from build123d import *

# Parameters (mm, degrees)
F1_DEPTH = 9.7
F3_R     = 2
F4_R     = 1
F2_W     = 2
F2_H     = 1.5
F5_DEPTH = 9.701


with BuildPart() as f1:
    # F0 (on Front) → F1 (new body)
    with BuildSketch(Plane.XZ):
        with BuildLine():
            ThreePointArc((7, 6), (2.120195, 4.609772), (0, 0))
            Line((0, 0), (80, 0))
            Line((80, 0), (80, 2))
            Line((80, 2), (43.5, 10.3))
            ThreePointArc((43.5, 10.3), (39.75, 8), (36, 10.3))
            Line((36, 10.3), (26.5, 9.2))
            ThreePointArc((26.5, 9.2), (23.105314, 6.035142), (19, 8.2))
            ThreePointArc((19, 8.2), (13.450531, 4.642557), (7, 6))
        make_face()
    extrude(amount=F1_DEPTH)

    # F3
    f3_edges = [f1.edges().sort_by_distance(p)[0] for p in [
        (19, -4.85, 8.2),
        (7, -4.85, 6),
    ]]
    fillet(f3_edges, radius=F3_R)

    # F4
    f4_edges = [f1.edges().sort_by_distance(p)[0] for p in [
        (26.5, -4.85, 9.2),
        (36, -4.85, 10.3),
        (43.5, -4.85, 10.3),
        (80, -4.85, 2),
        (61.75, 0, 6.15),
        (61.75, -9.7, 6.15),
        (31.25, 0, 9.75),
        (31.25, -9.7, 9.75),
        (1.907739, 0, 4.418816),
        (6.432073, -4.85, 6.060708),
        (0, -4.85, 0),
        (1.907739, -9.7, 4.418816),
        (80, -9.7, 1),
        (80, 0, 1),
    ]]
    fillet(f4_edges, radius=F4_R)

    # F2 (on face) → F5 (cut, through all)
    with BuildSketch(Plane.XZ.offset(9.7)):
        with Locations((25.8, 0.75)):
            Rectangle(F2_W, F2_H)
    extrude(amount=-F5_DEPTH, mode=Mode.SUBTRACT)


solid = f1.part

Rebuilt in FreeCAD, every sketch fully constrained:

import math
import FreeCAD as App
import Part
import Sketcher
from FreeCAD import Vector


def edges_at(feature, points):
    """Names of the edges that pass closest to the given points."""
    edges = feature.Shape.Edges
    near = lambda p: min(range(len(edges)), key=lambda i: edges[i].distToShape(Part.Vertex(*p))[0])
    return sorted({f"Edge{near(p) + 1}" for p in points})


def add_polygon(sketch, points):
    """Adds a closed chain of lines whose ends are joined by coincident constraints."""
    first, n = sketch.GeometryCount, len(points)
    for a, b in zip(points, points[1:] + points[:1]):
        sketch.addGeometry(Part.LineSegment(App.Vector(*a, 0), App.Vector(*b, 0)), False)
    for i in range(n):
        sketch.addConstraint(Sketcher.Constraint("Coincident", first + i, 2, first + (i + 1) % n, 1))

doc = App.newDocument("Part")
body = doc.addObject("PartDesign::Body", "Body")

# Sketch on XZ plane
sketch1 = body.newObject("Sketcher::SketchObject", "Sketch")
sketch1.AttachmentSupport = (doc.getObject("XZ_Plane"), [""])
sketch1.MapMode = "FlatFace"
sketch1.addGeometry([
    Part.ArcOfCircle(Part.Circle(Vector(6.071429, 0, 0), Vector(0, 0, 1), 6.071429), math.radians(81.20259), math.radians(180)),  # 0
    Part.LineSegment(Vector(0, 0, 0), Vector(80, 0, 0)),  # 1
    Part.LineSegment(Vector(80, 0, 0), Vector(80, 2, 0)),  # 2
    Part.LineSegment(Vector(80, 2, 0), Vector(43.5, 10.3, 0)),  # 3
    Part.ArcOfCircle(Part.Circle(Vector(39.75, 12.207065, 0), Vector(0, 0, 1), 4.207065), math.radians(-153.044354), math.radians(-26.955646)),  # 4
    Part.LineSegment(Vector(36, 10.3, 0), Vector(26.5, 9.2, 0)),  # 5
    Part.ArcOfCircle(Part.Circle(Vector(22.575856, 10.006079, 0), Vector(0, 0, 1), 4.006079), math.radians(-153.202751), math.radians(-11.607962)),  # 6
    Part.ArcOfCircle(Part.Circle(Vector(11.882406, 13.195965, 0), Vector(0, 0, 1), 8.695965), math.radians(-124.156586), math.radians(-35.065698)),  # 7
], False)
sketch1.addConstraint([
    Sketcher.Constraint("Coincident", 0, 2, 1, 1),
    Sketcher.Constraint("Coincident", 1, 2, 2, 1),
    Sketcher.Constraint("Coincident", 2, 2, 3, 1),
    Sketcher.Constraint("Coincident", 3, 2, 4, 2),
    Sketcher.Constraint("Coincident", 4, 1, 5, 1),
    Sketcher.Constraint("Coincident", 5, 2, 6, 2),
    Sketcher.Constraint("Coincident", 6, 1, 7, 2),
    Sketcher.Constraint("Coincident", 7, 1, 0, 1),
    Sketcher.Constraint("Horizontal", 1),
    Sketcher.Constraint("Vertical", 2),
    Sketcher.Constraint("Coincident", 0, 2, -1, 1),
    Sketcher.Constraint("PointOnObject", 0, 3, -1),
    Sketcher.Constraint("Horizontal", 3, 2, 4, 1),
    Sketcher.Constraint("DistanceX", 1, 1, 1, 2, 80.0),
    Sketcher.Constraint("DistanceY", 2, 1, 2, 2, 2.0),
    Sketcher.Constraint("DistanceX", -1, 1, 4, 1, 36.0),
    Sketcher.Constraint("DistanceX", -1, 1, 6, 1, 19.0),
    Sketcher.Constraint("DistanceX", -1, 1, 7, 1, 7.0),
    Sketcher.Constraint("DistanceY", -1, 1, 7, 1, 6.0),
    Sketcher.Constraint("DistanceX", 5, 2, 3, 2, 17.0),
    Sketcher.Constraint("DistanceY", 6, 1, 5, 2, 1.0),
    Sketcher.Constraint("DistanceX", -1, 1, 3, 2, 43.5),
    Sketcher.Constraint("DistanceY", -1, 1, 3, 2, 10.3),
    Sketcher.Constraint("DistanceY", -1, 1, 5, 2, 9.2),
    Sketcher.Constraint("Radius", 6, 4.006079),
    Sketcher.Constraint("Radius", 4, 4.207065),
    Sketcher.Constraint("Radius", 7, 8.695965),
])
pad1 = body.newObject("PartDesign::Pad", "Pad")
pad1.Profile = sketch1
pad1.Length = 9.7
doc.recompute()

fillet = body.newObject("PartDesign::Fillet", "Fillet")
fillet.Base = (pad1, edges_at(pad1, [(19, -4.85, 8.2), (7, -4.85, 6)]))
fillet.Radius = 2
doc.recompute()

fillet2 = body.newObject("PartDesign::Fillet", "Fillet001")
fillet2.Base = (fillet, edges_at(fillet, [
    (26.5, -4.85, 9.2),
    (36, -4.85, 10.3),
    (43.5, -4.85, 10.3),
    (80, -4.85, 2),
    (61.75, 0, 6.15),
    (61.75, -9.7, 6.15),
    (31.25, 0, 9.75),
    (31.25, -9.7, 9.75),
    (1.908, 0, 4.419),
    (6.432, -4.85, 6.061),
    (0, -4.85, 0),
    (1.908, -9.7, 4.419),
    (80, -9.7, 1),
    (80, 0, 1),
]))
fillet2.Radius = 1

# Sketch on XZ plane
sketch2 = body.newObject("Sketcher::SketchObject", "Sketch001")
sketch2.AttachmentSupport = (doc.getObject("XZ_Plane"), [""])
sketch2.MapMode = "FlatFace"
sketch2.AttachmentOffset = App.Placement(Vector(0, 0, 9.7), App.Rotation())
add_polygon(sketch2, [(24.8, 1.5), (24.8, 0), (26.8, 0), (26.8, 1.5)])  # lines 0-3
sketch2.addConstraint([
    Sketcher.Constraint("Vertical", 0),
    Sketcher.Constraint("Horizontal", 1),
    Sketcher.Constraint("Vertical", 2),
    Sketcher.Constraint("Horizontal", 3),
    Sketcher.Constraint("PointOnObject", 0, 2, -1),
    Sketcher.Constraint("DistanceX", 1, 1, 1, 2, 2.0),
    Sketcher.Constraint("DistanceY", 0, 2, 0, 1, 1.5),
    Sketcher.Constraint("DistanceX", -1, 1, 0, 2, 24.8),
])
pocket1 = body.newObject("PartDesign::Pocket", "Pocket")
pocket1.Profile = sketch2
pocket1.Type = "ThroughAll"

doc.recompute()
